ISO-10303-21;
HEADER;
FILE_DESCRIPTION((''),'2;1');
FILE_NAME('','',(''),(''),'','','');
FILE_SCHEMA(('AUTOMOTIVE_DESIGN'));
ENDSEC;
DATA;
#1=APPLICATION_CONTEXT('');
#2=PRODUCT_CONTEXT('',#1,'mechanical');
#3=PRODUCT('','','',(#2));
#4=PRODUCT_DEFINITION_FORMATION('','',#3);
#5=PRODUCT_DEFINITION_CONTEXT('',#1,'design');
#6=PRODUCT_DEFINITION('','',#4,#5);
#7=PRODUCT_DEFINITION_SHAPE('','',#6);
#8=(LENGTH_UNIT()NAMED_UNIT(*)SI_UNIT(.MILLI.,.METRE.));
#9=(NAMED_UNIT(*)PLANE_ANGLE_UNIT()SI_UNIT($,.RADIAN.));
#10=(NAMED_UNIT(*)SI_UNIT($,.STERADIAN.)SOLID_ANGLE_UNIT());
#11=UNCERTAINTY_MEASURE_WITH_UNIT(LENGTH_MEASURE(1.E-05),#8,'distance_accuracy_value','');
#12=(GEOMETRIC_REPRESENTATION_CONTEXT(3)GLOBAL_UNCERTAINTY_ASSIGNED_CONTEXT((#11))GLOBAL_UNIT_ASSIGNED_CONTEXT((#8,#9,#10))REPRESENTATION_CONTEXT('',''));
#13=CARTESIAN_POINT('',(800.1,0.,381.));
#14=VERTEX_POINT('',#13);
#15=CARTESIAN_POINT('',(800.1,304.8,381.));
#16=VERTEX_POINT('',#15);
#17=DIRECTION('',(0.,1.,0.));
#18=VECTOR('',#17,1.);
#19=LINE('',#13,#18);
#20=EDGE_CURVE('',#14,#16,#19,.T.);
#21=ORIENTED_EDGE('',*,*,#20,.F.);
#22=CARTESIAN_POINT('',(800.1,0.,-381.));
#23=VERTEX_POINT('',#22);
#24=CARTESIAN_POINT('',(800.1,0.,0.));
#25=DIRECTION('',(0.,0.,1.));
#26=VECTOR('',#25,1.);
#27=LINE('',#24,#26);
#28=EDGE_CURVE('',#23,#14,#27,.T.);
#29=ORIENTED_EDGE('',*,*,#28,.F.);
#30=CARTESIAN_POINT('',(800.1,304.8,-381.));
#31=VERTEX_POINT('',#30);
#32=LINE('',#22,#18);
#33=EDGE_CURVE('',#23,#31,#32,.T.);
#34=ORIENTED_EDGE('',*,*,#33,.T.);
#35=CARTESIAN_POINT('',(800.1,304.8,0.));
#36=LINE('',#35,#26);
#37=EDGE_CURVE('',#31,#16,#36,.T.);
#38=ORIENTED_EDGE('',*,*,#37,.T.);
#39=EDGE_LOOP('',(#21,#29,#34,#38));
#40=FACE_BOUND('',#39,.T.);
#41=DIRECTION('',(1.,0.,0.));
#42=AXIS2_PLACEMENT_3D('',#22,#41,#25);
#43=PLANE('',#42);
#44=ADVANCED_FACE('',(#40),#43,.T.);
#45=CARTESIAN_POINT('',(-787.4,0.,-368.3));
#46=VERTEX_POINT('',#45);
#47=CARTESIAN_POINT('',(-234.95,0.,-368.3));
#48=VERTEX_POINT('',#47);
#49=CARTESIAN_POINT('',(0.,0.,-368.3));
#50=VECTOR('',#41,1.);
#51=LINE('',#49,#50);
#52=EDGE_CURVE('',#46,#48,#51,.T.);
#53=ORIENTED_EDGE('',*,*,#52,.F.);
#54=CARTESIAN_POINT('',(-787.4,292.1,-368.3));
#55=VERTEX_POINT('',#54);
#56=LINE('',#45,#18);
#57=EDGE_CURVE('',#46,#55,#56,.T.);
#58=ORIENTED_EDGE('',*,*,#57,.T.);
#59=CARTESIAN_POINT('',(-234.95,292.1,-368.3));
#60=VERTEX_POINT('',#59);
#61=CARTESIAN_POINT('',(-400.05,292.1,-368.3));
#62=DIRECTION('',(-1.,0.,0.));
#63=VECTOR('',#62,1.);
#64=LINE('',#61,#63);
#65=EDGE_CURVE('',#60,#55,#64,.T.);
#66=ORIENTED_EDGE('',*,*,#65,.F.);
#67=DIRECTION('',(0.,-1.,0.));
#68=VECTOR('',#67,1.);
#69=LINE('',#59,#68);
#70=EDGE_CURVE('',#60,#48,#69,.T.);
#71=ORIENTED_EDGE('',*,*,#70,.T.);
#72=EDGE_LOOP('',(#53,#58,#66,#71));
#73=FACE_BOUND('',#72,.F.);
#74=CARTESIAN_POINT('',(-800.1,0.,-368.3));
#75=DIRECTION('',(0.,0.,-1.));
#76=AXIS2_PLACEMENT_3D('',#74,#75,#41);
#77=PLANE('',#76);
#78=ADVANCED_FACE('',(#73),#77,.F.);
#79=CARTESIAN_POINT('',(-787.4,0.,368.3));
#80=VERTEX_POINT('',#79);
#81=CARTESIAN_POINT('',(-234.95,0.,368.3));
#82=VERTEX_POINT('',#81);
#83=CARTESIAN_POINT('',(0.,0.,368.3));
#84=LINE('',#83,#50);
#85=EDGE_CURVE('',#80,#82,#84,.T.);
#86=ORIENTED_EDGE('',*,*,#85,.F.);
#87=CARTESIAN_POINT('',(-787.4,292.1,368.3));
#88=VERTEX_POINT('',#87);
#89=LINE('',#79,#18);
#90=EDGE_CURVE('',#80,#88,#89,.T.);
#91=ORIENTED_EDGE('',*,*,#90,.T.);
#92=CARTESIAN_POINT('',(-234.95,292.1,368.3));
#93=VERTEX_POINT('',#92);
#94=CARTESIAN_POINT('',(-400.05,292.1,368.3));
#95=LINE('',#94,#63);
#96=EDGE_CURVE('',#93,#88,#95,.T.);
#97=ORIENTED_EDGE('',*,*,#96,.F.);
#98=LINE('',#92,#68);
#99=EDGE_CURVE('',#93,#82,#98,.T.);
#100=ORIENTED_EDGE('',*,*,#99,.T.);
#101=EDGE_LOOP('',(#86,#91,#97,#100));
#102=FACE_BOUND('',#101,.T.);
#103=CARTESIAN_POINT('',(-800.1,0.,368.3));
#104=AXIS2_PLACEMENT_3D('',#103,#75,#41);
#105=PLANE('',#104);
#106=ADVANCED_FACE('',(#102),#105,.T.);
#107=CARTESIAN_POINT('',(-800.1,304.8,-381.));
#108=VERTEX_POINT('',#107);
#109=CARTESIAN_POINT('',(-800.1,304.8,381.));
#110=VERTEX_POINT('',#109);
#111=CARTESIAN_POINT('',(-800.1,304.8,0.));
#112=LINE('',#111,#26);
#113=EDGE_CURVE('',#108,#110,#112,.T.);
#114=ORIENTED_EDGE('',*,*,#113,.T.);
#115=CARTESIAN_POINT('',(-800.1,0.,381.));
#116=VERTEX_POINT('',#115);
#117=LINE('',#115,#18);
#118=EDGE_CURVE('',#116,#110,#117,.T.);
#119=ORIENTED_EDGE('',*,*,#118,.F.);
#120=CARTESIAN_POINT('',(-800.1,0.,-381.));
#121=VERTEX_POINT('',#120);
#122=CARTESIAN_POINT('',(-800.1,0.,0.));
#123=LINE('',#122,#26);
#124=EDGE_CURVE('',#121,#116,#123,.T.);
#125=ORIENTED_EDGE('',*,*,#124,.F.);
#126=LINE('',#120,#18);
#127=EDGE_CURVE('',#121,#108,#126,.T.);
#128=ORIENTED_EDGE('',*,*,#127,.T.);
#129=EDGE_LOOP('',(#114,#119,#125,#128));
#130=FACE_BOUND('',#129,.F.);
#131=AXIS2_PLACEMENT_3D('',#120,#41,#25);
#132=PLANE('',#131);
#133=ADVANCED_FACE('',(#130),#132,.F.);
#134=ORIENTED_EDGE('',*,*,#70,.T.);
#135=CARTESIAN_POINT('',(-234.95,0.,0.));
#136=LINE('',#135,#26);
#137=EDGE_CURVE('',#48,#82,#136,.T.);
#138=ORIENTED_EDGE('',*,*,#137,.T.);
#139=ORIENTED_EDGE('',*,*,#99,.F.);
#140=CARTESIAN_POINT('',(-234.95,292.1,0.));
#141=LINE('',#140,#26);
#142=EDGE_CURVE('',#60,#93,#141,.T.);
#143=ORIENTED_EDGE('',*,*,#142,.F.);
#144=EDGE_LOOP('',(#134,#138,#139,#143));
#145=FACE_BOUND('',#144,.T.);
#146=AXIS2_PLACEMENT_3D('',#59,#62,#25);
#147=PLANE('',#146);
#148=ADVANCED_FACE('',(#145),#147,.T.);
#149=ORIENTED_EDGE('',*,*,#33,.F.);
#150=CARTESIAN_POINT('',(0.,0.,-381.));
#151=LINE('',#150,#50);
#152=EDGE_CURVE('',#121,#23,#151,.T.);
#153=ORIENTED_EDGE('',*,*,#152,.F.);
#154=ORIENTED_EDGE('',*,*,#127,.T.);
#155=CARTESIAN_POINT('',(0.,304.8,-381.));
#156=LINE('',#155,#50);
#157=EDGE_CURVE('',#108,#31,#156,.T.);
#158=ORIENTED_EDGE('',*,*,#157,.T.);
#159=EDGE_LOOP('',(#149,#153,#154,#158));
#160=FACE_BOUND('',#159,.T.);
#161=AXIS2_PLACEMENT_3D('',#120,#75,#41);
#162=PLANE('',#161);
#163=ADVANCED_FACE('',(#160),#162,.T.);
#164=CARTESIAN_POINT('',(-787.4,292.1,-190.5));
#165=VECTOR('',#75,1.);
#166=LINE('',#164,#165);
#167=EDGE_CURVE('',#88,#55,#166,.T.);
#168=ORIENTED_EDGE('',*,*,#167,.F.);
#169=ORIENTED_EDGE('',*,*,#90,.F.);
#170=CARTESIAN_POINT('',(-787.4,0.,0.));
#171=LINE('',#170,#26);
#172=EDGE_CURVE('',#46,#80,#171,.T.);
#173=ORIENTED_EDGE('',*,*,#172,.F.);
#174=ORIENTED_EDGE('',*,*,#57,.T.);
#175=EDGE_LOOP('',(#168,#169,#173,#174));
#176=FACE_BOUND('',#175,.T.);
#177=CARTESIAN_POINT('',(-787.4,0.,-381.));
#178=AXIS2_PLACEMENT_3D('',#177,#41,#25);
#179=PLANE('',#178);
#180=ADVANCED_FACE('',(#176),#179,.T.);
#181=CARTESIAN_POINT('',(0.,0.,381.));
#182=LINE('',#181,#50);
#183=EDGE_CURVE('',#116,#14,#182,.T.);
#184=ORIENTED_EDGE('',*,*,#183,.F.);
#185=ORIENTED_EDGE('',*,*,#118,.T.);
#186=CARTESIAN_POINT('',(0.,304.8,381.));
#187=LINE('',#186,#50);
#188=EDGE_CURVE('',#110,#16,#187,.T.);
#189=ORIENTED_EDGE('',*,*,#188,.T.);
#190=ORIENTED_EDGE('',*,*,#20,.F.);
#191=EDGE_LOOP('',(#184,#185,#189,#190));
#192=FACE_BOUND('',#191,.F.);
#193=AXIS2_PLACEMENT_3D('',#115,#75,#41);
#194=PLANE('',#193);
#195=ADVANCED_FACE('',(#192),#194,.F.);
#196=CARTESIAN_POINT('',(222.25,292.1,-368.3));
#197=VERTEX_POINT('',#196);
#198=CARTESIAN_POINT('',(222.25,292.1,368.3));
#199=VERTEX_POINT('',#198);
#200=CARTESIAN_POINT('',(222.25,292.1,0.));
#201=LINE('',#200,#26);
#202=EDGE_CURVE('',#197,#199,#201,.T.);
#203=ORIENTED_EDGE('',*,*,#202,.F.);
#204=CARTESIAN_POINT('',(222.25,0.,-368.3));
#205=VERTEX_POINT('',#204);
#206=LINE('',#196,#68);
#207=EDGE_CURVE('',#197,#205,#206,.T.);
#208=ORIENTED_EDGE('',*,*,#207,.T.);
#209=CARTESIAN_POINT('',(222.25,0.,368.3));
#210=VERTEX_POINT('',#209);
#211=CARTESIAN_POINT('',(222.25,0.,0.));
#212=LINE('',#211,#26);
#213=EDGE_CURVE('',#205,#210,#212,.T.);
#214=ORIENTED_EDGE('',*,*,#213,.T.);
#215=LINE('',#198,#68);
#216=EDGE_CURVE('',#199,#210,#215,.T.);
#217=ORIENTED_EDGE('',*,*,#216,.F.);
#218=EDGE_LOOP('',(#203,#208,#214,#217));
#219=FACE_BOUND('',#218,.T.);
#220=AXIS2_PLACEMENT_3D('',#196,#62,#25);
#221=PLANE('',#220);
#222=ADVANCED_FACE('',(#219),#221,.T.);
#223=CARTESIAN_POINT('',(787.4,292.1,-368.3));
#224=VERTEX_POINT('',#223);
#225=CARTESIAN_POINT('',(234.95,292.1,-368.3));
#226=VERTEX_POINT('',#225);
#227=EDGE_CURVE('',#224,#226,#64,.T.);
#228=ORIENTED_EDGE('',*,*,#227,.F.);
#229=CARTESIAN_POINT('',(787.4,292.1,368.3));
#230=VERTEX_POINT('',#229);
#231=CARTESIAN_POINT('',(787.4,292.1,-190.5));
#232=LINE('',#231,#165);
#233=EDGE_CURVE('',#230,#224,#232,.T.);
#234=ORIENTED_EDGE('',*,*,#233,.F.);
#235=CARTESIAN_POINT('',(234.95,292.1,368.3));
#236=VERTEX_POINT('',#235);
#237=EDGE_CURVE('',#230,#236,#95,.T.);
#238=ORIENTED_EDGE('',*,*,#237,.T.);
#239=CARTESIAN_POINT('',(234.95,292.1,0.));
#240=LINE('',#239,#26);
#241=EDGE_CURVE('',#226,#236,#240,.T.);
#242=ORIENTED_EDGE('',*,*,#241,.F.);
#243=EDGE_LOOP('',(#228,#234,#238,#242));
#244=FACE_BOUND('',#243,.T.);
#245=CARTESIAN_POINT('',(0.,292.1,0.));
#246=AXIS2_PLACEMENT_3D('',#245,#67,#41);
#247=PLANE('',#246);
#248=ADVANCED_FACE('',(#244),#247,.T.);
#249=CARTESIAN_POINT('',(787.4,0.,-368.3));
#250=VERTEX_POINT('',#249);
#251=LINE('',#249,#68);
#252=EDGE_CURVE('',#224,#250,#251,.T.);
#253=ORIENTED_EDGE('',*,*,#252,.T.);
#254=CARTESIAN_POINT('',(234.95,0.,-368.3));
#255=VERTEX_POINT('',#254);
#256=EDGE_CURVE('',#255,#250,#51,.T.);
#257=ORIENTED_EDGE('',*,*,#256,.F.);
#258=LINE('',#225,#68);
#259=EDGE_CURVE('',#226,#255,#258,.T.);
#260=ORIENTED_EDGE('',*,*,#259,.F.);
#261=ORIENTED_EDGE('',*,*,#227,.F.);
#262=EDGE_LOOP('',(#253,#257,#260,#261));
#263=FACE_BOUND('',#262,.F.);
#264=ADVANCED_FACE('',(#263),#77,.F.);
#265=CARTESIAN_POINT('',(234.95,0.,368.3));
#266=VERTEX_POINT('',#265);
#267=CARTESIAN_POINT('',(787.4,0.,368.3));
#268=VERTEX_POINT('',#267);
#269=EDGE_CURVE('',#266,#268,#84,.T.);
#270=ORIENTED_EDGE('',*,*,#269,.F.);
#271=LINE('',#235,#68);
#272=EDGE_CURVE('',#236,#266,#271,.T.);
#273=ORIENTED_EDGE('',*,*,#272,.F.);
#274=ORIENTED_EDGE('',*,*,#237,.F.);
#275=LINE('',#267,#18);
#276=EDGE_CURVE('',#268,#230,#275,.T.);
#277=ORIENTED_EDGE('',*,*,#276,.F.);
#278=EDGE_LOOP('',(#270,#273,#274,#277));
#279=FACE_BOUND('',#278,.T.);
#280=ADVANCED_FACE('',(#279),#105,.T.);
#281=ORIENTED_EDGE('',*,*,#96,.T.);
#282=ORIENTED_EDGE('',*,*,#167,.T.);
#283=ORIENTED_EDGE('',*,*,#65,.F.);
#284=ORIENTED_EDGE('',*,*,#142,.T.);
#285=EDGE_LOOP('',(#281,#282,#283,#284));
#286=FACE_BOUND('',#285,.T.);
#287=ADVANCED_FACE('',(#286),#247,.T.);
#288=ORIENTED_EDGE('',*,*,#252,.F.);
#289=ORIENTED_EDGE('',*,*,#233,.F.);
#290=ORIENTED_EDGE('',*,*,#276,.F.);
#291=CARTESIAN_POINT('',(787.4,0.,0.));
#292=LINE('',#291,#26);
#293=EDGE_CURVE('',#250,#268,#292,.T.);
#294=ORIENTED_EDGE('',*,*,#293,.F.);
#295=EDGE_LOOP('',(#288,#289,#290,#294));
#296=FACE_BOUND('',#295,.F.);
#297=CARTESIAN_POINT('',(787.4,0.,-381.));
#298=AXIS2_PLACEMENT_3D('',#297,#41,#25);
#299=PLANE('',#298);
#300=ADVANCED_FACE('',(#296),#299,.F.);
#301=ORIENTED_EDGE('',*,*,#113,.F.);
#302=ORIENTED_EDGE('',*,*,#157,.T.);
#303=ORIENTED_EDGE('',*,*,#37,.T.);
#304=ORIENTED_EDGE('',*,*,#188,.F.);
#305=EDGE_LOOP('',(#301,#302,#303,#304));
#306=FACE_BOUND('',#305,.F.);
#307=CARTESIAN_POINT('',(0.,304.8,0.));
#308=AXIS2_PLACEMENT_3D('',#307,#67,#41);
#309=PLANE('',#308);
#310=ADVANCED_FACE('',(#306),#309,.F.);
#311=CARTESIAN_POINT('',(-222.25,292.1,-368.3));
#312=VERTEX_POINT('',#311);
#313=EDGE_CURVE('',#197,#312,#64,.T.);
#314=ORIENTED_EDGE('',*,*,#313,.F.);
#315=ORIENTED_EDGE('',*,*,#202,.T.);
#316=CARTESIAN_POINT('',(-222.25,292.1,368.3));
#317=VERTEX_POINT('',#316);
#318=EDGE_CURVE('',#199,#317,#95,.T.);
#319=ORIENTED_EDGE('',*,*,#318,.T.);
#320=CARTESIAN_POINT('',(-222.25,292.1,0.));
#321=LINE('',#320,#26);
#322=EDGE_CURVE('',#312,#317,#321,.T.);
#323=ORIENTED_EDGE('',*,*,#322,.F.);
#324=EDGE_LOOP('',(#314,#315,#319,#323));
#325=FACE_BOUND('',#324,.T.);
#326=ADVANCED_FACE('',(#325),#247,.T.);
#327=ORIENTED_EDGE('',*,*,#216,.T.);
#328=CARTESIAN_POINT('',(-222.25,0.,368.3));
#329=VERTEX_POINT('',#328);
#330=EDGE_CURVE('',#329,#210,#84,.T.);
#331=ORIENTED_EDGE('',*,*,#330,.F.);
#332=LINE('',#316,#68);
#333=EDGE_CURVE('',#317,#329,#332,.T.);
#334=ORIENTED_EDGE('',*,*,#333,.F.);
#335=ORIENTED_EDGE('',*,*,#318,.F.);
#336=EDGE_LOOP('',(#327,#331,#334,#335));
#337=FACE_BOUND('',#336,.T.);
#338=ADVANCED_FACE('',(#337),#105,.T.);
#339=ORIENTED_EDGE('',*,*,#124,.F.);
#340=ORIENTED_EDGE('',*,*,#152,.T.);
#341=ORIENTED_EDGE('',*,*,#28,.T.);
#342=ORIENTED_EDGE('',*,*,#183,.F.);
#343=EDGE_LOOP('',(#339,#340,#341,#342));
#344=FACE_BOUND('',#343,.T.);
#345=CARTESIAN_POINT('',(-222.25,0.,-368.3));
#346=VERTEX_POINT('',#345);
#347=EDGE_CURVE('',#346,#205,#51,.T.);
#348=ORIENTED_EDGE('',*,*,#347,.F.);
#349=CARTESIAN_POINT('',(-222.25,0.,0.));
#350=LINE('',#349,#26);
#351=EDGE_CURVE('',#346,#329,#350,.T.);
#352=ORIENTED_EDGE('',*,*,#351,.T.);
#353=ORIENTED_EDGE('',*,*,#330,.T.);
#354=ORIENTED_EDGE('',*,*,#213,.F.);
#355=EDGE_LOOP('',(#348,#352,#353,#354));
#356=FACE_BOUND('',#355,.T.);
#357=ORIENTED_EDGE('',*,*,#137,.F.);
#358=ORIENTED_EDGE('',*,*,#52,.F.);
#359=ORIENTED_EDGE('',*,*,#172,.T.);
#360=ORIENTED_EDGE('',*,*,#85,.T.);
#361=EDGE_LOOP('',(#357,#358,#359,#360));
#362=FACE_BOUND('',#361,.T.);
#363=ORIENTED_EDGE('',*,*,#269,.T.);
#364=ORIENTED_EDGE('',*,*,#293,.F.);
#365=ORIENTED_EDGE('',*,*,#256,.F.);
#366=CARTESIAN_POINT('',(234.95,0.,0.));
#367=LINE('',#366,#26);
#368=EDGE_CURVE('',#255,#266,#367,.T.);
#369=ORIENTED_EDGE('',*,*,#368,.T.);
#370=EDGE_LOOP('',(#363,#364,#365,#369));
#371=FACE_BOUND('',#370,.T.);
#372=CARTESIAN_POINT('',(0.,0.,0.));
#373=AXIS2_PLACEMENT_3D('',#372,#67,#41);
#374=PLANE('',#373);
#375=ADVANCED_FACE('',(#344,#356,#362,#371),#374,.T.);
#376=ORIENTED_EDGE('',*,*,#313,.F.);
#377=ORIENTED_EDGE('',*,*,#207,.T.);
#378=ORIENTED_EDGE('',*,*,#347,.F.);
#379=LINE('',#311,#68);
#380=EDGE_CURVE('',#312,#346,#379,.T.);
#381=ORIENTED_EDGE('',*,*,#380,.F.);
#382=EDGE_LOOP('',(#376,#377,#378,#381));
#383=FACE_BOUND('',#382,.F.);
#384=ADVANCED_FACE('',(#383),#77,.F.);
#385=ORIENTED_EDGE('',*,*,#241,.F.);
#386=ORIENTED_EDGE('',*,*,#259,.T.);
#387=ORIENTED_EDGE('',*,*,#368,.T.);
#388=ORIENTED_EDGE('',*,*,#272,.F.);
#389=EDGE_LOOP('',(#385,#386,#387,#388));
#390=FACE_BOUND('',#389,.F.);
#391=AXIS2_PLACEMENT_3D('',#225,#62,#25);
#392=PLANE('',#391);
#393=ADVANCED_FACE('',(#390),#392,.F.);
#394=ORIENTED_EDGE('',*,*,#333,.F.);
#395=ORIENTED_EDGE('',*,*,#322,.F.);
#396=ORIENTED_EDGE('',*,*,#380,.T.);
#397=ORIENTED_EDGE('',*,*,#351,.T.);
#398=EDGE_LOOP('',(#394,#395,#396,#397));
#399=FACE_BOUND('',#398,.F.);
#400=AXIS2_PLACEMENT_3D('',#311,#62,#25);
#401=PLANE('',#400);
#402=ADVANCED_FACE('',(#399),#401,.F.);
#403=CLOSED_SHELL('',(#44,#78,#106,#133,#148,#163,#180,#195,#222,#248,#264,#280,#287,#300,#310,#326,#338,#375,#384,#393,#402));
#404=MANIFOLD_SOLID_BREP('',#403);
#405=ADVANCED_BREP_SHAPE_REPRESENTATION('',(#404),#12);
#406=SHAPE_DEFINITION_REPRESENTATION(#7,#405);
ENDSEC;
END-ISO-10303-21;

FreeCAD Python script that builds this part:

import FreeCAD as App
import Part
import Sketcher
from FreeCAD import Vector
Q = App.Units.Quantity


def faces_at(feature, points):
    """Names of the faces that lie closest to the given points."""
    faces = feature.Shape.Faces
    near = lambda p: min(range(len(faces)), key=lambda i: faces[i].distToShape(Part.Vertex(*p))[0])
    return sorted({f"Face{near(p) + 1}" for p in points})

doc = App.newDocument("Part")
body = doc.addObject("PartDesign::Body", "Body")

# Sketch on XZ plane
sketch1 = body.newObject("Sketcher::SketchObject", "Sketch")
sketch1.AttachmentSupport = (doc.getObject("XZ_Plane"), [""])
sketch1.MapMode = "FlatFace"
sketch1.addGeometry([
    Part.LineSegment(Vector(-800, 381, 0), Vector(-800, -381, 0)),
    Part.LineSegment(Vector(-800, -381, 0), Vector(800, -381, 0)),
    Part.LineSegment(Vector(800, -381, 0), Vector(800, 381, 0)),
    Part.LineSegment(Vector(800, 381, 0), Vector(-800, 381, 0)),
], False)
sketch1.addConstraint([
    Sketcher.Constraint("Coincident", 0, 2, 1, 1),
    Sketcher.Constraint("Coincident", 1, 2, 2, 1),
    Sketcher.Constraint("Coincident", 2, 2, 3, 1),
    Sketcher.Constraint("Coincident", 3, 2, 0, 1),
    Sketcher.Constraint("Vertical", 0),
    Sketcher.Constraint("Horizontal", 1),
    Sketcher.Constraint("Vertical", 2),
    Sketcher.Constraint("Horizontal", 3),
    Sketcher.Constraint("Symmetric", 0, 2, 2, 2, -1, 1),
    Sketcher.Constraint("DistanceX", 1, 1, 1, 2, Q("63 in")),
    Sketcher.Constraint("DistanceY", 0, 2, 0, 1, Q("30 in")),
])
pad1 = body.newObject("PartDesign::Pad", "Pad")
pad1.Profile = sketch1
pad1.Length = Q("12 in")
pad1.Reversed = True
doc.recompute()

thickness = body.newObject("PartDesign::Thickness", "Thickness")
thickness.Base = (pad1, faces_at(pad1, [(0, 0, 0)]))
thickness.Value = Q("0.5 in")
thickness.Reversed = True
thickness.Join = "Arc"

# Sketch on XZ plane
sketch2 = body.newObject("Sketcher::SketchObject", "Sketch001")
sketch2.AttachmentSupport = (doc.getObject("XZ_Plane"), [""])
sketch2.MapMode = "FlatFace"
sketch2.AttachmentOffset = App.Placement(Vector(0, 0, -11.5 * 25.4), App.Rotation())
sketch2.addGeometry([
    Part.LineSegment(Vector(-235, 368, 0), Vector(-235, -368, 0)),  # 0
    Part.LineSegment(Vector(-235, -368, 0), Vector(-222, -368, 0)),  # 1
    Part.LineSegment(Vector(-222, -368, 0), Vector(-222, 368, 0)),  # 2
    Part.LineSegment(Vector(-222, 368, 0), Vector(-235, 368, 0)),  # 3
    Part.LineSegment(Vector(222, 368, 0), Vector(222, -368, 0)),  # 4
    Part.LineSegment(Vector(222, -368, 0), Vector(235, -368, 0)),  # 5
    Part.LineSegment(Vector(235, -368, 0), Vector(235, 368, 0)),  # 6
    Part.LineSegment(Vector(235, 368, 0), Vector(222, 368, 0)),  # 7
], False)
sketch2.addConstraint([
    Sketcher.Constraint("Coincident", 0, 2, 1, 1),
    Sketcher.Constraint("Coincident", 1, 2, 2, 1),
    Sketcher.Constraint("Coincident", 2, 2, 3, 1),
    Sketcher.Constraint("Coincident", 3, 2, 0, 1),
    Sketcher.Constraint("Coincident", 4, 2, 5, 1),
    Sketcher.Constraint("Coincident", 5, 2, 6, 1),
    Sketcher.Constraint("Coincident", 6, 2, 7, 1),
    Sketcher.Constraint("Coincident", 7, 2, 4, 1),
    Sketcher.Constraint("Vertical", 0),
    Sketcher.Constraint("Horizontal", 1),
    Sketcher.Constraint("Vertical", 2),
    Sketcher.Constraint("Horizontal", 3),
    Sketcher.Constraint("Vertical", 4),
    Sketcher.Constraint("Horizontal", 5),
    Sketcher.Constraint("Vertical", 6),
    Sketcher.Constraint("Horizontal", 7),
    Sketcher.Constraint("Symmetric", 2, 2, 4, 2, -1, 1),
    Sketcher.Constraint("Symmetric", 0, 2, 6, 2, -1, 1),
    Sketcher.Constraint("Horizontal", 1, 2, 4, 2),
    Sketcher.Constraint("DistanceY", 0, 2, 0, 1, Q("29 in")),
    Sketcher.Constraint("DistanceX", 1, 1, 1, 2, Q("0.5 in")),
    Sketcher.Constraint("DistanceX", 0, 2, 4, 2, Q("18 in")),
])
pad2 = body.newObject("PartDesign::Pad", "Pad001")
pad2.Profile = sketch2
pad2.Length = Q("11.5 in")

doc.recompute()
